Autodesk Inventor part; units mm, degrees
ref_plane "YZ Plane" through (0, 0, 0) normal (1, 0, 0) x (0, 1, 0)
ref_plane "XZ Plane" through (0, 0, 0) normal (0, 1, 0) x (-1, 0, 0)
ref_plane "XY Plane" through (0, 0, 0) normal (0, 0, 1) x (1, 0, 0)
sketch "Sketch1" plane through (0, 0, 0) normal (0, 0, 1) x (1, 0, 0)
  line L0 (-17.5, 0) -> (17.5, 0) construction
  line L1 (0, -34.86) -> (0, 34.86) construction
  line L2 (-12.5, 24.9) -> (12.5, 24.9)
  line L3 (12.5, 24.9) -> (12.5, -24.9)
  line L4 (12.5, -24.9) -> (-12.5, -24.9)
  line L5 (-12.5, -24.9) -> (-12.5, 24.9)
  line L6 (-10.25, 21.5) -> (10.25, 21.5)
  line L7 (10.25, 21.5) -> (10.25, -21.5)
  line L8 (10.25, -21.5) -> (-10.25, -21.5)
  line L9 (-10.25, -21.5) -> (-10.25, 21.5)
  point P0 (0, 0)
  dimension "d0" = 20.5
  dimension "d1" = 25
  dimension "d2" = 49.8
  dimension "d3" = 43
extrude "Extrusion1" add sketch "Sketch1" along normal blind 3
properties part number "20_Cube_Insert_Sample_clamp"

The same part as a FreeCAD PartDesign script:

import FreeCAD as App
import Part
import Sketcher

V = App.Vector
Q = App.Units.Quantity


def add_polygon(sketch, points):
    """Adds a closed chain of lines whose ends are joined by coincident constraints."""
    first, n = sketch.GeometryCount, len(points)
    for a, b in zip(points, points[1:] + points[:1]):
        sketch.addGeometry(Part.LineSegment(App.Vector(*a, 0), App.Vector(*b, 0)), False)
    for i in range(n):
        sketch.addConstraint(Sketcher.Constraint("Coincident", first + i, 2, first + (i + 1) % n, 1))

doc = App.newDocument("Part")
body = doc.addObject("PartDesign::Body", "Body")

sketch1 = doc.addObject("Sketcher::SketchObject", "Sketch")
body.addObject(sketch1)
sketch1.AttachmentSupport = (doc.XY_Plane, [""])
sketch1.MapMode = "FlatFace"
add_polygon(sketch1, [(12, 25), (-12, 25), (-12, -25), (12, -25)])
add_polygon(sketch1, [(-10, -22), (-10, 22), (10, 22), (10, -22)])
sketch1.addConstraint([
    Sketcher.Constraint("Horizontal", 0),
    Sketcher.Constraint("Vertical", 1),
    Sketcher.Constraint("Horizontal", 2),
    Sketcher.Constraint("Vertical", 3),
    Sketcher.Constraint("Vertical", 4),
    Sketcher.Constraint("Horizontal", 5),
    Sketcher.Constraint("Vertical", 6),
    Sketcher.Constraint("Horizontal", 7),
    Sketcher.Constraint("Symmetric", 0, 2, 2, 2, -1, 1),
    Sketcher.Constraint("Symmetric", 4, 2, 6, 2, -1, 1),
    Sketcher.Constraint("DistanceX", 0, 2, 0, 1, Q("25 mm")),
    Sketcher.Constraint("DistanceY", 4, 1, 4, 2, Q("43 mm")),
    Sketcher.Constraint("DistanceX", 5, 1, 5, 2, Q("20.5 mm")),
    Sketcher.Constraint("DistanceY", 1, 2, 1, 1, Q("49.8 mm")),
])
pad1 = doc.addObject("PartDesign::Pad", "Pad")
body.addObject(pad1)
pad1.Profile = sketch1
pad1.Length = 3

doc.recompute()
